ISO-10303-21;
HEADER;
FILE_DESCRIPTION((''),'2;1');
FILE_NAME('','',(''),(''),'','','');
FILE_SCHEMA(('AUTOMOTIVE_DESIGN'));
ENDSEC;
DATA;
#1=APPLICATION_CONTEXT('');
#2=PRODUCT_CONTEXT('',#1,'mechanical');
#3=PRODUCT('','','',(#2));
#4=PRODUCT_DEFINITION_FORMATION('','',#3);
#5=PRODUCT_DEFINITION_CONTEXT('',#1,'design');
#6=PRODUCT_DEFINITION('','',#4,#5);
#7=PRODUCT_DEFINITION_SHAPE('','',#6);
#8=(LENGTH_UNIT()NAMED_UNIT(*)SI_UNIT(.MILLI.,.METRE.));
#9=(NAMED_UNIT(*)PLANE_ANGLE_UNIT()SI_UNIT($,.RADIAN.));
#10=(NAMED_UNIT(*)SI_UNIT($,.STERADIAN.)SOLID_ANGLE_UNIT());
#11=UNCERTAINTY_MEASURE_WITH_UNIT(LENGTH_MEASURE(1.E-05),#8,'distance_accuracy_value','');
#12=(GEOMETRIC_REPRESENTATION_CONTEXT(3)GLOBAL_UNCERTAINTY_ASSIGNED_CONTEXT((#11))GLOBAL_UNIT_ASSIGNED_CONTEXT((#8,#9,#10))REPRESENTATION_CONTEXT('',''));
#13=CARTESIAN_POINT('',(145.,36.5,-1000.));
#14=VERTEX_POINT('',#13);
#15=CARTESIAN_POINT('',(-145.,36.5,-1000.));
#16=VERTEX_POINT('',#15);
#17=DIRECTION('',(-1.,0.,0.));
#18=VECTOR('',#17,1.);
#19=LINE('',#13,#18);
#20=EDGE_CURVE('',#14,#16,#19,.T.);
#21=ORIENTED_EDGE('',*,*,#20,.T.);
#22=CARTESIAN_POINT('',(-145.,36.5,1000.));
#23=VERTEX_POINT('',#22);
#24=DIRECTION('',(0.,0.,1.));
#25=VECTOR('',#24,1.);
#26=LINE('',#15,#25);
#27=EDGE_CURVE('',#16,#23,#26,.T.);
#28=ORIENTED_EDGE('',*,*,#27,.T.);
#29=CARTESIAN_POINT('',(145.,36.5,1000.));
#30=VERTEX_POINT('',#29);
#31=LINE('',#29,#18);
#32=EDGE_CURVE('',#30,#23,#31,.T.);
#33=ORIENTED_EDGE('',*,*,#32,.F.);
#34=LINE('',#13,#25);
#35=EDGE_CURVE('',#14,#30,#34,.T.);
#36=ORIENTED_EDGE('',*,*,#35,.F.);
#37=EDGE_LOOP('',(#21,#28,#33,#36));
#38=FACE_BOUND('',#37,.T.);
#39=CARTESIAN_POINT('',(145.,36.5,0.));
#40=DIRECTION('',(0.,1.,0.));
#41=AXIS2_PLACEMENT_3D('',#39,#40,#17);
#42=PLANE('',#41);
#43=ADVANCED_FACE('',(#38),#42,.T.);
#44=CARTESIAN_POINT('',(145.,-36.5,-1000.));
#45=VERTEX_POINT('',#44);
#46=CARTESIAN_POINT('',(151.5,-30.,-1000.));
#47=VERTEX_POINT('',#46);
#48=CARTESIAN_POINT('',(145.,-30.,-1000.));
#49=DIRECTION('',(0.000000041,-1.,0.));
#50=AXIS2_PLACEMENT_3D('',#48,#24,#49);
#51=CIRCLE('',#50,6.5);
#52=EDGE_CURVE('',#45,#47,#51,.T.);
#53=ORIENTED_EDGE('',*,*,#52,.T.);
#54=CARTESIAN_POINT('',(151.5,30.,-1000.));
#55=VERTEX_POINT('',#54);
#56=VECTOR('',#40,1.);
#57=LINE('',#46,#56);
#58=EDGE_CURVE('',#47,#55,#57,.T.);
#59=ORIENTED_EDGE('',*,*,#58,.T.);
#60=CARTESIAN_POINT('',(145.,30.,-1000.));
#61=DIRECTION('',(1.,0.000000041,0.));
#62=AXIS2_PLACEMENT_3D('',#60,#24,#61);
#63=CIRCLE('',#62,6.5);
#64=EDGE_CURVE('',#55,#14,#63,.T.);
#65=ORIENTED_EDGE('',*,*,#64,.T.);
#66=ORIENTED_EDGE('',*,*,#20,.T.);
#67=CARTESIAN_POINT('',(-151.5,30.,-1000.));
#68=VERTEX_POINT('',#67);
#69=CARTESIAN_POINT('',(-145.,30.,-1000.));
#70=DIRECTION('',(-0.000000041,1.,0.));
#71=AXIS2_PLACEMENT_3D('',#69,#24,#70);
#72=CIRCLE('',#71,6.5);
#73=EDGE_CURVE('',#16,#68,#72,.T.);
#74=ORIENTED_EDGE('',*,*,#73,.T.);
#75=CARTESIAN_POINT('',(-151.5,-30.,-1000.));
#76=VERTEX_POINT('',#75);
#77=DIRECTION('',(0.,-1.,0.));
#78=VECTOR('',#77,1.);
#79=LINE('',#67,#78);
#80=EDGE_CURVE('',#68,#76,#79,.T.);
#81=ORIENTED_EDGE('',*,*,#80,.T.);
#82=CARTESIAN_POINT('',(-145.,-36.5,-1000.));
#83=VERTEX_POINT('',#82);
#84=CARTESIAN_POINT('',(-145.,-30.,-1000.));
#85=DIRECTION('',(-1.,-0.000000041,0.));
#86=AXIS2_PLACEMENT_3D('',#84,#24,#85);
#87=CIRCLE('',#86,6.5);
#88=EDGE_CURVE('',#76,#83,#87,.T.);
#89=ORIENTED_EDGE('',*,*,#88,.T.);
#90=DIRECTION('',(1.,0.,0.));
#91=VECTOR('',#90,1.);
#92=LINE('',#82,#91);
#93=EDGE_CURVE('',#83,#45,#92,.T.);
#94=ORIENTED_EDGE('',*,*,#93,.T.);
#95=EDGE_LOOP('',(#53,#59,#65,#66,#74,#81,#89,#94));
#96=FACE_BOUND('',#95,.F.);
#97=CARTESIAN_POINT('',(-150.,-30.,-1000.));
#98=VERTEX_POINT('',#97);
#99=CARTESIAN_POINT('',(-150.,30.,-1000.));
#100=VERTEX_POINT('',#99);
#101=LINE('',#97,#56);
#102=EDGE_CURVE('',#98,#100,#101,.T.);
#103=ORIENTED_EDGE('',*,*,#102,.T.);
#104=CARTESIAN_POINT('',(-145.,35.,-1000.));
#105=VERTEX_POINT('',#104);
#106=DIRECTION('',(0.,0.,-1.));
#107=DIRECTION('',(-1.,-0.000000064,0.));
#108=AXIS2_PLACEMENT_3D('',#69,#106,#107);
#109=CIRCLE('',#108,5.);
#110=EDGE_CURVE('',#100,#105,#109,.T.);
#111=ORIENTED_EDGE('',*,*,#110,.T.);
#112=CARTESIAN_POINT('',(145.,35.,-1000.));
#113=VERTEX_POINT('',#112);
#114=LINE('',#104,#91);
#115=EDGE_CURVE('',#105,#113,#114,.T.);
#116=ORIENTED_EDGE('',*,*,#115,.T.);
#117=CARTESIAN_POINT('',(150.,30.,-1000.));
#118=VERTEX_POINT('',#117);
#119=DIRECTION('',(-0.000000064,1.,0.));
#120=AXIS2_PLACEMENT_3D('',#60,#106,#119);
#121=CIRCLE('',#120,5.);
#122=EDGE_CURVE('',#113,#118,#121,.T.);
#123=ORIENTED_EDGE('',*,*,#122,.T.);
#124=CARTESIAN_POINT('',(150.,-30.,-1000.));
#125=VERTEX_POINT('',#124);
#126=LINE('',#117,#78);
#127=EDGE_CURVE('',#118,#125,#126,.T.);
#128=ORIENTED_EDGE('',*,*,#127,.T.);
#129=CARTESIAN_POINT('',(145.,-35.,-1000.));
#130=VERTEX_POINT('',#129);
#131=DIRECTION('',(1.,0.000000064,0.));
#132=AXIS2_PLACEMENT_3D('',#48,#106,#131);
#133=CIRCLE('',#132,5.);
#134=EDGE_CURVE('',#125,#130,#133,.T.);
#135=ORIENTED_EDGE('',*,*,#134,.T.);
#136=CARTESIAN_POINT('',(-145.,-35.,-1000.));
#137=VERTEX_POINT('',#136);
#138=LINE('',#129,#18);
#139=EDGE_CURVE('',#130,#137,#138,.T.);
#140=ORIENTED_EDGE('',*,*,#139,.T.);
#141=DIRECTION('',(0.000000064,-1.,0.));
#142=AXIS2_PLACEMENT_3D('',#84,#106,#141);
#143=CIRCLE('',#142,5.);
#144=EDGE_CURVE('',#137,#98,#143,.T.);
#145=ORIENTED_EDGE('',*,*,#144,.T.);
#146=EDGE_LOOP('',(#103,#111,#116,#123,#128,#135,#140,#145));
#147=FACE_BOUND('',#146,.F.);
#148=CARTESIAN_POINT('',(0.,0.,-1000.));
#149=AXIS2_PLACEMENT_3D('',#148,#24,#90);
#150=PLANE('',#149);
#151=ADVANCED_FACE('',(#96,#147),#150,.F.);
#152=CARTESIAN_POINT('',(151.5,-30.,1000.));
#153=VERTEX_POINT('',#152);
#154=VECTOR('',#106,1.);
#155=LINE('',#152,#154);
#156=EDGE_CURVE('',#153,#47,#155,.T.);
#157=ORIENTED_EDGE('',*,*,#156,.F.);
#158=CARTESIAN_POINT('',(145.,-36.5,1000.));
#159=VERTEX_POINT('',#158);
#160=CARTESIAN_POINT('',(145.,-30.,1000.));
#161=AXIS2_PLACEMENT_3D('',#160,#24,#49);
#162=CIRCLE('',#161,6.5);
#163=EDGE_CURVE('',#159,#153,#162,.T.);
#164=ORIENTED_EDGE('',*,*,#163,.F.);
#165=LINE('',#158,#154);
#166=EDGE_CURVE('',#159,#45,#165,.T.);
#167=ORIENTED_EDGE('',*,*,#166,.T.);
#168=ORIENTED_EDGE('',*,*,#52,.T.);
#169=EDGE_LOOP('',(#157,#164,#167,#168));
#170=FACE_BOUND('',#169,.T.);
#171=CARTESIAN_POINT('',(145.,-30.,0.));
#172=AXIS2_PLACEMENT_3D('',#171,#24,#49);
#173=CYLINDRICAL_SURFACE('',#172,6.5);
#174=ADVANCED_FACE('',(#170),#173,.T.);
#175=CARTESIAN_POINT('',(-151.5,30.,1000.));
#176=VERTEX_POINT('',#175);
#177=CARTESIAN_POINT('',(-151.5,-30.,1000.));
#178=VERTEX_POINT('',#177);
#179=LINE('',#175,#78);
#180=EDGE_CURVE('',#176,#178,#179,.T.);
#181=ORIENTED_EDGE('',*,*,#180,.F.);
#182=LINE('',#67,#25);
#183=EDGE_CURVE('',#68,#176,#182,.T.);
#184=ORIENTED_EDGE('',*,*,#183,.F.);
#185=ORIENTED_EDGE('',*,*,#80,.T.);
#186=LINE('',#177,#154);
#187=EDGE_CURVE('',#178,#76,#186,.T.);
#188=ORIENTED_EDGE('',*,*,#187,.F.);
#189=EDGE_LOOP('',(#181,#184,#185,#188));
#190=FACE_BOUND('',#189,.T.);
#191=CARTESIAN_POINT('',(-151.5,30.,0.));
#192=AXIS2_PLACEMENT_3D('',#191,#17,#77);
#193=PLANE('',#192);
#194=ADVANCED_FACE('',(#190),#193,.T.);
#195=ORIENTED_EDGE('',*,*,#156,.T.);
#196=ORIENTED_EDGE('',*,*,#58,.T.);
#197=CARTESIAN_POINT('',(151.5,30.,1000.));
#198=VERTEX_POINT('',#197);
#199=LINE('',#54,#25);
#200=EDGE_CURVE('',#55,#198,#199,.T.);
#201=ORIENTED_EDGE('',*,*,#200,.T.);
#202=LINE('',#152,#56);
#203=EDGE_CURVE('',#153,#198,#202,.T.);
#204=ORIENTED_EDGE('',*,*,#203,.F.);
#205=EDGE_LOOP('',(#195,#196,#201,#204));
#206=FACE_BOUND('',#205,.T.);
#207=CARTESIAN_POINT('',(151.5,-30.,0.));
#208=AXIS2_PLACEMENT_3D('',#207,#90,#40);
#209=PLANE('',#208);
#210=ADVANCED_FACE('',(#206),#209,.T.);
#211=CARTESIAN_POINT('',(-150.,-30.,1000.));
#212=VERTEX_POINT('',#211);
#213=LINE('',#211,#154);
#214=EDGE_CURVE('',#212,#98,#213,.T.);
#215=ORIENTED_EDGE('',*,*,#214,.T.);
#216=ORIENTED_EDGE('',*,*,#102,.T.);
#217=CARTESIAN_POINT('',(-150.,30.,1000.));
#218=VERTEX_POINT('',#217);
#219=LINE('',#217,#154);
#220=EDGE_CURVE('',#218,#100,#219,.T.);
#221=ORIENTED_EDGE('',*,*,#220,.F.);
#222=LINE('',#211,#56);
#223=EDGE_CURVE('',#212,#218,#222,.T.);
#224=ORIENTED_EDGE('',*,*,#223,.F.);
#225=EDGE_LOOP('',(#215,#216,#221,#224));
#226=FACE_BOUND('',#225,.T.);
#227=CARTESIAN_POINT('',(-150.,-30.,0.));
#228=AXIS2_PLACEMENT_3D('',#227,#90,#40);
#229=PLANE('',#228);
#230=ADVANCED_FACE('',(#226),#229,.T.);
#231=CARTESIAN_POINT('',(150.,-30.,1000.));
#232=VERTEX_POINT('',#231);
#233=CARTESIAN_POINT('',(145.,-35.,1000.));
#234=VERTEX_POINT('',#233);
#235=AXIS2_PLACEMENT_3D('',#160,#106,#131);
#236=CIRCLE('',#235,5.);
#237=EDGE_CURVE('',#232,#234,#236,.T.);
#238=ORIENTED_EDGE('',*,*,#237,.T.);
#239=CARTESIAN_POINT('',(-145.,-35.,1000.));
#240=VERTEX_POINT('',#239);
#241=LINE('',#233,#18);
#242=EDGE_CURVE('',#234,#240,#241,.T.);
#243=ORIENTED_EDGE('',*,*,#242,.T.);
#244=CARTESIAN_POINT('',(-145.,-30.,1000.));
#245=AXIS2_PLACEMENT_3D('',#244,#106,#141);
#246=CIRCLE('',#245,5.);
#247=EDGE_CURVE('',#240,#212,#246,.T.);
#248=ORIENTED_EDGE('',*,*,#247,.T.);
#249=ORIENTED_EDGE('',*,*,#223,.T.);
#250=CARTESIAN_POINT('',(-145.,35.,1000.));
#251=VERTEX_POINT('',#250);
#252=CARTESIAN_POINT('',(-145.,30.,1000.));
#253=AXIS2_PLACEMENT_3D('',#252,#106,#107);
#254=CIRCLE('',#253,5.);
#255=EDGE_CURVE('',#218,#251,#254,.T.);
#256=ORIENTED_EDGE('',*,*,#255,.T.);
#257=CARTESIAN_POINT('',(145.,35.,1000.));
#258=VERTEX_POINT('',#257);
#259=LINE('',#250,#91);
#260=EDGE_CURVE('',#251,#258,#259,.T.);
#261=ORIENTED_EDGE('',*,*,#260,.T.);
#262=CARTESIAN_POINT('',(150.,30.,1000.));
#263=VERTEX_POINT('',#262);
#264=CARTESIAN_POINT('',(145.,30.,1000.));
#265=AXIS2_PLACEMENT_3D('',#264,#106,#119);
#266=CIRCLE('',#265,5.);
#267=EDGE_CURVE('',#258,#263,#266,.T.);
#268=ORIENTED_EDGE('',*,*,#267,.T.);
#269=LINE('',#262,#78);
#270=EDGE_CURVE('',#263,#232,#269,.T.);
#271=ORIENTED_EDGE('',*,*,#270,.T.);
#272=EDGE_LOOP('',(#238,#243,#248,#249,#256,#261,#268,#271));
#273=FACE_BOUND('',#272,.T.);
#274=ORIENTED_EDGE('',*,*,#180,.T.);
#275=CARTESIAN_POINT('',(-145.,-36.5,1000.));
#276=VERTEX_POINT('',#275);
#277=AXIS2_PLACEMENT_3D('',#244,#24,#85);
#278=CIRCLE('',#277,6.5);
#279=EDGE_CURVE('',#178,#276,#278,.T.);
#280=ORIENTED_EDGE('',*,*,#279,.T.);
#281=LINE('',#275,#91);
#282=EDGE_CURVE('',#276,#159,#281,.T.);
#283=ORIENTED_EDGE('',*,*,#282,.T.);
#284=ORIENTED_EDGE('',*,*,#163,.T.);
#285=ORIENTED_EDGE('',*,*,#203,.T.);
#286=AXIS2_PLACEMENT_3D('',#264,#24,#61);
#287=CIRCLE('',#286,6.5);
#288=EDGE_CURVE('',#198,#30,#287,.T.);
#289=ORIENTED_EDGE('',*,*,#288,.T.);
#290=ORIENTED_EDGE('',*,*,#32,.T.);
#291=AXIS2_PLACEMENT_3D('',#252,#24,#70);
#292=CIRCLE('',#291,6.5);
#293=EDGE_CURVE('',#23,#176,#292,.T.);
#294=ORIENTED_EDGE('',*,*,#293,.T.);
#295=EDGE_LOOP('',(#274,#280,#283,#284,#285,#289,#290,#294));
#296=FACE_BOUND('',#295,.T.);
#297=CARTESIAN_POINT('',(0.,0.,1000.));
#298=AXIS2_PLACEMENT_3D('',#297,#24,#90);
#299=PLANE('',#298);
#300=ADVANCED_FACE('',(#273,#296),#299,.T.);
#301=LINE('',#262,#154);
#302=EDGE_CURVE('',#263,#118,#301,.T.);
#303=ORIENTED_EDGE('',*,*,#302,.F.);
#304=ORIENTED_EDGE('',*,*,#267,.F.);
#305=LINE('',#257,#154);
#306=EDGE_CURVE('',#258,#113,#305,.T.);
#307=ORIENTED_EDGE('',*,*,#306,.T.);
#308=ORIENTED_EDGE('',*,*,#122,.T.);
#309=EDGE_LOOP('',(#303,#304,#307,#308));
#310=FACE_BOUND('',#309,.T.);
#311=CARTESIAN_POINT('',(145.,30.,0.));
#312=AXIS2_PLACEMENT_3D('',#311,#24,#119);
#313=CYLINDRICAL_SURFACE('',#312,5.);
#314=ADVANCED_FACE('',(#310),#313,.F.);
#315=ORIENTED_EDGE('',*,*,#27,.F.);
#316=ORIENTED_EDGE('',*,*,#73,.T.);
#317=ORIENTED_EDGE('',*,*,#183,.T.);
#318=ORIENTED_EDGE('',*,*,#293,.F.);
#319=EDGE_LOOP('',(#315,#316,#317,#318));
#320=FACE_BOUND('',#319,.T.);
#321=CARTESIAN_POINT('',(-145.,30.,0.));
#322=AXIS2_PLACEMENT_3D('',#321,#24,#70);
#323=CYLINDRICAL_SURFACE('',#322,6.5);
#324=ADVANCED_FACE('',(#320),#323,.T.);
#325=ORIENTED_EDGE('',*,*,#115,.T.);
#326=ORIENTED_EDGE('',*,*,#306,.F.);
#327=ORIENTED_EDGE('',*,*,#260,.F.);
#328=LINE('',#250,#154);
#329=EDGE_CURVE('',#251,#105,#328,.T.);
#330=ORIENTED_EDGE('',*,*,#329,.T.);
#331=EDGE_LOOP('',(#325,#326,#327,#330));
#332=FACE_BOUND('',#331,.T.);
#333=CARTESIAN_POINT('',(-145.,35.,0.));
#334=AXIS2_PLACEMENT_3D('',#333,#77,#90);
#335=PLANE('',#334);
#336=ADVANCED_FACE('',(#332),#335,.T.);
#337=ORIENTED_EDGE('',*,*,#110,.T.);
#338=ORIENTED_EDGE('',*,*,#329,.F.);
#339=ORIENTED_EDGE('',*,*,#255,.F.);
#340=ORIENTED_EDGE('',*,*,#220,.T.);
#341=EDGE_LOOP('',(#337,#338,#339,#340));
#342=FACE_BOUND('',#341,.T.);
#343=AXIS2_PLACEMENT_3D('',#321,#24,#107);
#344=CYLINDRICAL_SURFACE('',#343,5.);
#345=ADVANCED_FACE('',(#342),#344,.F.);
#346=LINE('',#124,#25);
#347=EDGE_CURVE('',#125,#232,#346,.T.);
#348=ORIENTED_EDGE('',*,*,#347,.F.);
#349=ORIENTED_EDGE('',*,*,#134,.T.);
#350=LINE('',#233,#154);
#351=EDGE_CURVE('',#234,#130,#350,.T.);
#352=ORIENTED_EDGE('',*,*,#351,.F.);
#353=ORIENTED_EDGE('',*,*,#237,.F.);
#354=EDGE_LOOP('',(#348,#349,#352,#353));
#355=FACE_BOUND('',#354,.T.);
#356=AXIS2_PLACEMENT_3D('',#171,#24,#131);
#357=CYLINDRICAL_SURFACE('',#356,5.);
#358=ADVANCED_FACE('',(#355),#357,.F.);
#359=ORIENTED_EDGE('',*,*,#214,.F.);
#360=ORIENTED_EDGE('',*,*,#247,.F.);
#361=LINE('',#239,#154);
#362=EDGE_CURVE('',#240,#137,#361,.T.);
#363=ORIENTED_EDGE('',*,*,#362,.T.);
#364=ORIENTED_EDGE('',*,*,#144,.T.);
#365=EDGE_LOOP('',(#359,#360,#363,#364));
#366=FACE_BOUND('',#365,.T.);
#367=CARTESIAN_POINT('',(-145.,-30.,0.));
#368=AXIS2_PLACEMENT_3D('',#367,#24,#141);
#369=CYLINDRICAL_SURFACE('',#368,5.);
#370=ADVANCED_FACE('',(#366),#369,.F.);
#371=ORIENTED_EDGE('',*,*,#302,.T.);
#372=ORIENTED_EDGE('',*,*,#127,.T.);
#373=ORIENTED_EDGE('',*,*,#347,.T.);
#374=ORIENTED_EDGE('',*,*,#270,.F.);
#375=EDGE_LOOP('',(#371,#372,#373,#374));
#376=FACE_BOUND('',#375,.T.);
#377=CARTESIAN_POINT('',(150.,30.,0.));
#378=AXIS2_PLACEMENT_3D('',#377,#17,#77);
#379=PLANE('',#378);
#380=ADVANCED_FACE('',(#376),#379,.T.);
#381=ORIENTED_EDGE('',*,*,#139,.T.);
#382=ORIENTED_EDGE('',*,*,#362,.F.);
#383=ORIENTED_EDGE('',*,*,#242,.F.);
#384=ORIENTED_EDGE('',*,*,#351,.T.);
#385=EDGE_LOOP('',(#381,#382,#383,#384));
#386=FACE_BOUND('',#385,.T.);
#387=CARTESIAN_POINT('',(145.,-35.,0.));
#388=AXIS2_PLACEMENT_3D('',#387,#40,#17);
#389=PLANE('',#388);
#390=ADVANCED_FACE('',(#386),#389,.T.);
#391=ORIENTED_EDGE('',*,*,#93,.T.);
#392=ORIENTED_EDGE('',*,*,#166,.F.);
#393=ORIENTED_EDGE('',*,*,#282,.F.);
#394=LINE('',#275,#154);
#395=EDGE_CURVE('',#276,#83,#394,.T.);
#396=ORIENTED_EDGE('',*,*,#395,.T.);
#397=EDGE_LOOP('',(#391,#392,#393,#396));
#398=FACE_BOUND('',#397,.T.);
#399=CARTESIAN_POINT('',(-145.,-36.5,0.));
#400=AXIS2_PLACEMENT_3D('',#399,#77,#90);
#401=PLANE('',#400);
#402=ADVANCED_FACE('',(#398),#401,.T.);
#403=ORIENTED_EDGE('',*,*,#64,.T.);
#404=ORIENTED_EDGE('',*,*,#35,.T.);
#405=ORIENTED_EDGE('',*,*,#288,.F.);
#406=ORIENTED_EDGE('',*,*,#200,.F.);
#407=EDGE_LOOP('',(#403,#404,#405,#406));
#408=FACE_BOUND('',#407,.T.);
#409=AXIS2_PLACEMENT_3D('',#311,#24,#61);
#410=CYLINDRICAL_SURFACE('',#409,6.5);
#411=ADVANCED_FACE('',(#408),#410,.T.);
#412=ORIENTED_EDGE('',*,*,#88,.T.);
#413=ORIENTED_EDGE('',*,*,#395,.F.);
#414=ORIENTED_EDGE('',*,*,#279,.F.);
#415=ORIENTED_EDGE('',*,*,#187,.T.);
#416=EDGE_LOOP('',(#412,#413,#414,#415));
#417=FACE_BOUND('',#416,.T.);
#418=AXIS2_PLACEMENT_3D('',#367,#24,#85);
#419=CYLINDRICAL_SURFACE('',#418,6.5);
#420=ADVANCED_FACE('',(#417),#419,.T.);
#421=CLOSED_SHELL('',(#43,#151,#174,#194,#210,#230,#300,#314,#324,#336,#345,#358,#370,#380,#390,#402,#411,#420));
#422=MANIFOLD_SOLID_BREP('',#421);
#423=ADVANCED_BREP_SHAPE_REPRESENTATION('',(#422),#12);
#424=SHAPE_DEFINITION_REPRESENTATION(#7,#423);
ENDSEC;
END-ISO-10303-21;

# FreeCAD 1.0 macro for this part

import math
import FreeCAD as App
import Part
import Sketcher
from FreeCAD import Vector

doc = App.newDocument("Part")
params = doc.addObject("Spreadsheet::Sheet", "Params")
for row, (alias, value) in enumerate([
    ("sketch1_radius", "5 mm"),
    ("sketch1_radius2", "6.5 mm"),
    ("sketch1_width", "290 mm"),
    ("sketch1_height", "60 mm"),
    ("pad1_length", "1000 mm"),
    ("pad1_length2", "1000 mm"),
], start=1):
    params.set(f"A{row}", alias)
    params.set(f"B{row}", "=" + value)
    params.setAlias(f"B{row}", alias)

body = doc.addObject("PartDesign::Body", "Body")

# Sketch on XY plane
sketch1 = doc.addObject("Sketcher::SketchObject", "Sketch")
body.addObject(sketch1)
sketch1.AttachmentSupport = (doc.XY_Plane, [""])
sketch1.MapMode = "FlatFace"
sketch1.addGeometry(Part.LineSegment(Vector(151.5, -30, 0), Vector(151.5, 30, 0)), False)
sketch1.addGeometry(Part.ArcOfCircle(Part.Circle(Vector(145, 30, 0), Vector(0, 0, 1), 6.5), math.radians(0), math.radians(90)), False)
sketch1.addGeometry(Part.LineSegment(Vector(145, 36.5, 0), Vector(-145, 36.5, 0)), False)
sketch1.addGeometry(Part.ArcOfCircle(Part.Circle(Vector(-145, 30, 0), Vector(0, 0, 1), 6.5), math.radians(90), math.radians(180)), False)
sketch1.addGeometry(Part.LineSegment(Vector(-151.5, 30, 0), Vector(-151.5, -30, 0)), False)
sketch1.addGeometry(Part.ArcOfCircle(Part.Circle(Vector(-145, -30, 0), Vector(0, 0, 1), 6.5), math.radians(-180), math.radians(-90)), False)
sketch1.addGeometry(Part.LineSegment(Vector(-145, -36.5, 0), Vector(145, -36.5, 0)), False)
sketch1.addGeometry(Part.ArcOfCircle(Part.Circle(Vector(145, -30, 0), Vector(0, 0, 1), 6.5), math.radians(-90), math.radians(0)), False)
sketch1.addGeometry(Part.LineSegment(Vector(150, 30, 0), Vector(150, -30, 0)), False)
sketch1.addGeometry(Part.ArcOfCircle(Part.Circle(Vector(145, -30, 0), Vector(0, 0, 1), 5), math.radians(-90), math.radians(0)), False)
sketch1.addGeometry(Part.LineSegment(Vector(145, -35, 0), Vector(-145, -35, 0)), False)
sketch1.addGeometry(Part.ArcOfCircle(Part.Circle(Vector(-145, -30, 0), Vector(0, 0, 1), 5), math.radians(180), math.radians(270)), False)
sketch1.addGeometry(Part.LineSegment(Vector(-150, -30, 0), Vector(-150, 30, 0)), False)
sketch1.addGeometry(Part.ArcOfCircle(Part.Circle(Vector(-145, 30, 0), Vector(0, 0, 1), 5), math.radians(90), math.radians(180)), False)
sketch1.addGeometry(Part.LineSegment(Vector(-145, 35, 0), Vector(145, 35, 0)), False)
sketch1.addGeometry(Part.ArcOfCircle(Part.Circle(Vector(145, 30, 0), Vector(0, 0, 1), 5), math.radians(0), math.radians(90)), False)
sketch1.addConstraint(Sketcher.Constraint("Tangent", 0, 2, 1, 1))
sketch1.addConstraint(Sketcher.Constraint("Tangent", 1, 2, 2, 1))
sketch1.addConstraint(Sketcher.Constraint("Tangent", 2, 2, 3, 1))
sketch1.addConstraint(Sketcher.Constraint("Tangent", 3, 2, 4, 1))
sketch1.addConstraint(Sketcher.Constraint("Tangent", 4, 2, 5, 1))
sketch1.addConstraint(Sketcher.Constraint("Tangent", 5, 2, 6, 1))
sketch1.addConstraint(Sketcher.Constraint("Tangent", 6, 2, 7, 1))
sketch1.addConstraint(Sketcher.Constraint("Tangent", 7, 2, 0, 1))
sketch1.addConstraint(Sketcher.Constraint("Tangent", 8, 2, 9, 2))
sketch1.addConstraint(Sketcher.Constraint("Tangent", 9, 1, 10, 1))
sketch1.addConstraint(Sketcher.Constraint("Tangent", 10, 2, 11, 2))
sketch1.addConstraint(Sketcher.Constraint("Tangent", 11, 1, 12, 1))
sketch1.addConstraint(Sketcher.Constraint("Tangent", 12, 2, 13, 2))
sketch1.addConstraint(Sketcher.Constraint("Tangent", 13, 1, 14, 1))
sketch1.addConstraint(Sketcher.Constraint("Tangent", 14, 2, 15, 2))
sketch1.addConstraint(Sketcher.Constraint("Tangent", 15, 1, 8, 1))
sketch1.addConstraint(Sketcher.Constraint("Vertical", 0))
sketch1.addConstraint(Sketcher.Constraint("Horizontal", 2))
sketch1.addConstraint(Sketcher.Constraint("Vertical", 4))
sketch1.addConstraint(Sketcher.Constraint("Horizontal", 6))
sketch1.addConstraint(Sketcher.Constraint("Vertical", 8))
sketch1.addConstraint(Sketcher.Constraint("Horizontal", 10))
sketch1.addConstraint(Sketcher.Constraint("Vertical", 12))
sketch1.addConstraint(Sketcher.Constraint("Horizontal", 14))
sketch1.addConstraint(Sketcher.Constraint("Coincident", 9, 3, 7, 3))
sketch1.addConstraint(Sketcher.Constraint("Coincident", 11, 3, 5, 3))
sketch1.addConstraint(Sketcher.Constraint("Coincident", 13, 3, 3, 3))
sketch1.addConstraint(Sketcher.Constraint("Equal", 1, 3))
sketch1.addConstraint(Sketcher.Constraint("Equal", 3, 5))
sketch1.addConstraint(Sketcher.Constraint("Equal", 5, 7))
sketch1.addConstraint(Sketcher.Constraint("Equal", 13, 15))
sketch1.addConstraint(Sketcher.Constraint("Symmetric", 1, 3, 5, 3, -1, 1))
sketch1.addConstraint(Sketcher.Constraint("Radius", 9, 5.0))
sketch1.addConstraint(Sketcher.Constraint("Radius", 1, 6.5))
sketch1.addConstraint(Sketcher.Constraint("DistanceX", 2, 2, 2, 1, 290.0))
sketch1.addConstraint(Sketcher.Constraint("DistanceY", 0, 1, 0, 2, 60.0))
sketch1.setExpression("Constraints[32]", "Params.sketch1_radius")
sketch1.setExpression("Constraints[33]", "Params.sketch1_radius2")
sketch1.setExpression("Constraints[34]", "Params.sketch1_width")
sketch1.setExpression("Constraints[35]", "Params.sketch1_height")
pad1 = doc.addObject("PartDesign::Pad", "Pad")
body.addObject(pad1)
pad1.Profile = sketch1
pad1.Type = "TwoLengths"
pad1.setExpression("Length", "Params.pad1_length")
pad1.setExpression("Length2", "Params.pad1_length2")

doc.recompute()
